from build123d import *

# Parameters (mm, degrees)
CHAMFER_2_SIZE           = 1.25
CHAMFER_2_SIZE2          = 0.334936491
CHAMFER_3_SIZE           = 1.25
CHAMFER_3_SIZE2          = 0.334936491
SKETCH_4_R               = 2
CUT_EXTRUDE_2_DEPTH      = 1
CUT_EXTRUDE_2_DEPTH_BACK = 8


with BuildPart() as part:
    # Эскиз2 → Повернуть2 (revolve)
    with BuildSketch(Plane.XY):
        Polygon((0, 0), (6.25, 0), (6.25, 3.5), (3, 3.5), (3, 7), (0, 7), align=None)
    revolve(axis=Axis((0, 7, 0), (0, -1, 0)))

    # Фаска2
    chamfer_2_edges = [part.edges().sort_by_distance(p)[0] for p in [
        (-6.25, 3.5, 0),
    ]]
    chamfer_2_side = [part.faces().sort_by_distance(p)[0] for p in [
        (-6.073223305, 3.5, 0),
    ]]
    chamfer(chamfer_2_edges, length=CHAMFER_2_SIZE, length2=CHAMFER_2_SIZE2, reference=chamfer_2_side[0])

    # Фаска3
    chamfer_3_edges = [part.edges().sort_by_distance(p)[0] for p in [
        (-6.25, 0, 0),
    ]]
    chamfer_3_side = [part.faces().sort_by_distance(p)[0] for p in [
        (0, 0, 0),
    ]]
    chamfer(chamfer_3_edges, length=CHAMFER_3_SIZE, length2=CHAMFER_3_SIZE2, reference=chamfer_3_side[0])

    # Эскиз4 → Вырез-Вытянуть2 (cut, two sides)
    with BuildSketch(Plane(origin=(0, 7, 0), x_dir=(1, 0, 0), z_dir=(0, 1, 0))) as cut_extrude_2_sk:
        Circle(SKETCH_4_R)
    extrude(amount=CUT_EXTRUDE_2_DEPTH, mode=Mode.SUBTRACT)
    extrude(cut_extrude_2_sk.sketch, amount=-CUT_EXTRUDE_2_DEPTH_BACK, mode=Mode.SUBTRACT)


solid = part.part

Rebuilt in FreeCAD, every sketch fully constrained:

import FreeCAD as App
import Part
import Sketcher

V = App.Vector


def edges_at(feature, points):
    """Names of the edges that pass closest to the given points."""
    edges = feature.Shape.Edges
    near = lambda p: min(range(len(edges)), key=lambda i: edges[i].distToShape(Part.Vertex(*p))[0])
    return sorted({f"Edge{near(p) + 1}" for p in points})

doc = App.newDocument("Part")
body = doc.addObject("PartDesign::Body", "Body")

# Sketch on XY plane
sketch1 = doc.addObject("Sketcher::SketchObject", "Sketch")
body.addObject(sketch1)
sketch1.AttachmentSupport = (doc.XY_Plane, [""])
sketch1.MapMode = "FlatFace"
sketch1.addGeometry([
    Part.LineSegment(V(0, 0, 0), V(6.2, 0, 0)),  # 0
    Part.LineSegment(V(6.2, 0, 0), V(6.2, 3.5, 0)),  # 1
    Part.LineSegment(V(6.2, 3.5, 0), V(3, 3.5, 0)),  # 2
    Part.LineSegment(V(3, 3.5, 0), V(3, 7, 0)),  # 3
    Part.LineSegment(V(3, 7, 0), V(0, 7, 0)),  # 4
    Part.LineSegment(V(0, 7, 0), V(0, 0, 0)),  # 5
], False)
sketch1.addConstraint([
    Sketcher.Constraint("Coincident", 0, 2, 1, 1),
    Sketcher.Constraint("Coincident", 1, 2, 2, 1),
    Sketcher.Constraint("Coincident", 2, 2, 3, 1),
    Sketcher.Constraint("Coincident", 3, 2, 4, 1),
    Sketcher.Constraint("Coincident", 4, 2, 5, 1),
    Sketcher.Constraint("Coincident", 5, 2, 0, 1),
    Sketcher.Constraint("Horizontal", 0),
    Sketcher.Constraint("Vertical", 1),
    Sketcher.Constraint("Horizontal", 2),
    Sketcher.Constraint("Vertical", 3),
    Sketcher.Constraint("Horizontal", 4),
    Sketcher.Constraint("Vertical", 5),
    Sketcher.Constraint("Coincident", 5, 2, -1, 1),
    Sketcher.Constraint("Equal", 1, 3),
    Sketcher.Constraint("DistanceX", 4, 2, 4, 1, 3.0),
    Sketcher.Constraint("DistanceY", 5, 2, 5, 1, 7.0),
    Sketcher.Constraint("DistanceX", 0, 1, 0, 2, 6.25),
])
revolution = doc.addObject("PartDesign::Revolution", "Revolution")
body.addObject(revolution)
revolution.Profile = sketch1
revolution.ReferenceAxis = (sketch1, ["V_Axis"])
revolution.Angle = 360
doc.recompute()

chamfer = doc.addObject("PartDesign::Chamfer", "Chamfer")
body.addObject(chamfer)
chamfer.Base = (revolution, edges_at(revolution, [(-6.25, 3.5, 0)]))
chamfer.ChamferType = "Two distances"
chamfer.Size = 1.25
chamfer.Size2 = 0.334936
chamfer.FlipDirection = True
doc.recompute()

chamfer2 = doc.addObject("PartDesign::Chamfer", "Chamfer001")
body.addObject(chamfer2)
chamfer2.Base = (chamfer, edges_at(chamfer, [(-6.25, 0, 0)]))
chamfer2.ChamferType = "Two distances"
chamfer2.Size = 1.25
chamfer2.Size2 = 0.334936
chamfer2.FlipDirection = True

# Sketch on XZ plane
sketch2 = doc.addObject("Sketcher::SketchObject", "Sketch001")
body.addObject(sketch2)
sketch2.AttachmentSupport = (doc.XZ_Plane, [""])
sketch2.MapMode = "FlatFace"
sketch2.AttachmentOffset = App.Placement(V(0, 0, -7), App.Rotation())
sketch2.addGeometry(Part.Circle(V(0, 0, 0), V(0, 0, 1), 2), False)
sketch2.addConstraint([
    Sketcher.Constraint("Coincident", 0, 3, -1, 1),
    Sketcher.Constraint("Diameter", 0, 4.0),
])
pocket1 = doc.addObject("PartDesign::Pocket", "Pocket")
body.addObject(pocket1)
pocket1.Profile = sketch2
pocket1.Type = "ThroughAll"
pocket1.Midplane = True

doc.recompute()
